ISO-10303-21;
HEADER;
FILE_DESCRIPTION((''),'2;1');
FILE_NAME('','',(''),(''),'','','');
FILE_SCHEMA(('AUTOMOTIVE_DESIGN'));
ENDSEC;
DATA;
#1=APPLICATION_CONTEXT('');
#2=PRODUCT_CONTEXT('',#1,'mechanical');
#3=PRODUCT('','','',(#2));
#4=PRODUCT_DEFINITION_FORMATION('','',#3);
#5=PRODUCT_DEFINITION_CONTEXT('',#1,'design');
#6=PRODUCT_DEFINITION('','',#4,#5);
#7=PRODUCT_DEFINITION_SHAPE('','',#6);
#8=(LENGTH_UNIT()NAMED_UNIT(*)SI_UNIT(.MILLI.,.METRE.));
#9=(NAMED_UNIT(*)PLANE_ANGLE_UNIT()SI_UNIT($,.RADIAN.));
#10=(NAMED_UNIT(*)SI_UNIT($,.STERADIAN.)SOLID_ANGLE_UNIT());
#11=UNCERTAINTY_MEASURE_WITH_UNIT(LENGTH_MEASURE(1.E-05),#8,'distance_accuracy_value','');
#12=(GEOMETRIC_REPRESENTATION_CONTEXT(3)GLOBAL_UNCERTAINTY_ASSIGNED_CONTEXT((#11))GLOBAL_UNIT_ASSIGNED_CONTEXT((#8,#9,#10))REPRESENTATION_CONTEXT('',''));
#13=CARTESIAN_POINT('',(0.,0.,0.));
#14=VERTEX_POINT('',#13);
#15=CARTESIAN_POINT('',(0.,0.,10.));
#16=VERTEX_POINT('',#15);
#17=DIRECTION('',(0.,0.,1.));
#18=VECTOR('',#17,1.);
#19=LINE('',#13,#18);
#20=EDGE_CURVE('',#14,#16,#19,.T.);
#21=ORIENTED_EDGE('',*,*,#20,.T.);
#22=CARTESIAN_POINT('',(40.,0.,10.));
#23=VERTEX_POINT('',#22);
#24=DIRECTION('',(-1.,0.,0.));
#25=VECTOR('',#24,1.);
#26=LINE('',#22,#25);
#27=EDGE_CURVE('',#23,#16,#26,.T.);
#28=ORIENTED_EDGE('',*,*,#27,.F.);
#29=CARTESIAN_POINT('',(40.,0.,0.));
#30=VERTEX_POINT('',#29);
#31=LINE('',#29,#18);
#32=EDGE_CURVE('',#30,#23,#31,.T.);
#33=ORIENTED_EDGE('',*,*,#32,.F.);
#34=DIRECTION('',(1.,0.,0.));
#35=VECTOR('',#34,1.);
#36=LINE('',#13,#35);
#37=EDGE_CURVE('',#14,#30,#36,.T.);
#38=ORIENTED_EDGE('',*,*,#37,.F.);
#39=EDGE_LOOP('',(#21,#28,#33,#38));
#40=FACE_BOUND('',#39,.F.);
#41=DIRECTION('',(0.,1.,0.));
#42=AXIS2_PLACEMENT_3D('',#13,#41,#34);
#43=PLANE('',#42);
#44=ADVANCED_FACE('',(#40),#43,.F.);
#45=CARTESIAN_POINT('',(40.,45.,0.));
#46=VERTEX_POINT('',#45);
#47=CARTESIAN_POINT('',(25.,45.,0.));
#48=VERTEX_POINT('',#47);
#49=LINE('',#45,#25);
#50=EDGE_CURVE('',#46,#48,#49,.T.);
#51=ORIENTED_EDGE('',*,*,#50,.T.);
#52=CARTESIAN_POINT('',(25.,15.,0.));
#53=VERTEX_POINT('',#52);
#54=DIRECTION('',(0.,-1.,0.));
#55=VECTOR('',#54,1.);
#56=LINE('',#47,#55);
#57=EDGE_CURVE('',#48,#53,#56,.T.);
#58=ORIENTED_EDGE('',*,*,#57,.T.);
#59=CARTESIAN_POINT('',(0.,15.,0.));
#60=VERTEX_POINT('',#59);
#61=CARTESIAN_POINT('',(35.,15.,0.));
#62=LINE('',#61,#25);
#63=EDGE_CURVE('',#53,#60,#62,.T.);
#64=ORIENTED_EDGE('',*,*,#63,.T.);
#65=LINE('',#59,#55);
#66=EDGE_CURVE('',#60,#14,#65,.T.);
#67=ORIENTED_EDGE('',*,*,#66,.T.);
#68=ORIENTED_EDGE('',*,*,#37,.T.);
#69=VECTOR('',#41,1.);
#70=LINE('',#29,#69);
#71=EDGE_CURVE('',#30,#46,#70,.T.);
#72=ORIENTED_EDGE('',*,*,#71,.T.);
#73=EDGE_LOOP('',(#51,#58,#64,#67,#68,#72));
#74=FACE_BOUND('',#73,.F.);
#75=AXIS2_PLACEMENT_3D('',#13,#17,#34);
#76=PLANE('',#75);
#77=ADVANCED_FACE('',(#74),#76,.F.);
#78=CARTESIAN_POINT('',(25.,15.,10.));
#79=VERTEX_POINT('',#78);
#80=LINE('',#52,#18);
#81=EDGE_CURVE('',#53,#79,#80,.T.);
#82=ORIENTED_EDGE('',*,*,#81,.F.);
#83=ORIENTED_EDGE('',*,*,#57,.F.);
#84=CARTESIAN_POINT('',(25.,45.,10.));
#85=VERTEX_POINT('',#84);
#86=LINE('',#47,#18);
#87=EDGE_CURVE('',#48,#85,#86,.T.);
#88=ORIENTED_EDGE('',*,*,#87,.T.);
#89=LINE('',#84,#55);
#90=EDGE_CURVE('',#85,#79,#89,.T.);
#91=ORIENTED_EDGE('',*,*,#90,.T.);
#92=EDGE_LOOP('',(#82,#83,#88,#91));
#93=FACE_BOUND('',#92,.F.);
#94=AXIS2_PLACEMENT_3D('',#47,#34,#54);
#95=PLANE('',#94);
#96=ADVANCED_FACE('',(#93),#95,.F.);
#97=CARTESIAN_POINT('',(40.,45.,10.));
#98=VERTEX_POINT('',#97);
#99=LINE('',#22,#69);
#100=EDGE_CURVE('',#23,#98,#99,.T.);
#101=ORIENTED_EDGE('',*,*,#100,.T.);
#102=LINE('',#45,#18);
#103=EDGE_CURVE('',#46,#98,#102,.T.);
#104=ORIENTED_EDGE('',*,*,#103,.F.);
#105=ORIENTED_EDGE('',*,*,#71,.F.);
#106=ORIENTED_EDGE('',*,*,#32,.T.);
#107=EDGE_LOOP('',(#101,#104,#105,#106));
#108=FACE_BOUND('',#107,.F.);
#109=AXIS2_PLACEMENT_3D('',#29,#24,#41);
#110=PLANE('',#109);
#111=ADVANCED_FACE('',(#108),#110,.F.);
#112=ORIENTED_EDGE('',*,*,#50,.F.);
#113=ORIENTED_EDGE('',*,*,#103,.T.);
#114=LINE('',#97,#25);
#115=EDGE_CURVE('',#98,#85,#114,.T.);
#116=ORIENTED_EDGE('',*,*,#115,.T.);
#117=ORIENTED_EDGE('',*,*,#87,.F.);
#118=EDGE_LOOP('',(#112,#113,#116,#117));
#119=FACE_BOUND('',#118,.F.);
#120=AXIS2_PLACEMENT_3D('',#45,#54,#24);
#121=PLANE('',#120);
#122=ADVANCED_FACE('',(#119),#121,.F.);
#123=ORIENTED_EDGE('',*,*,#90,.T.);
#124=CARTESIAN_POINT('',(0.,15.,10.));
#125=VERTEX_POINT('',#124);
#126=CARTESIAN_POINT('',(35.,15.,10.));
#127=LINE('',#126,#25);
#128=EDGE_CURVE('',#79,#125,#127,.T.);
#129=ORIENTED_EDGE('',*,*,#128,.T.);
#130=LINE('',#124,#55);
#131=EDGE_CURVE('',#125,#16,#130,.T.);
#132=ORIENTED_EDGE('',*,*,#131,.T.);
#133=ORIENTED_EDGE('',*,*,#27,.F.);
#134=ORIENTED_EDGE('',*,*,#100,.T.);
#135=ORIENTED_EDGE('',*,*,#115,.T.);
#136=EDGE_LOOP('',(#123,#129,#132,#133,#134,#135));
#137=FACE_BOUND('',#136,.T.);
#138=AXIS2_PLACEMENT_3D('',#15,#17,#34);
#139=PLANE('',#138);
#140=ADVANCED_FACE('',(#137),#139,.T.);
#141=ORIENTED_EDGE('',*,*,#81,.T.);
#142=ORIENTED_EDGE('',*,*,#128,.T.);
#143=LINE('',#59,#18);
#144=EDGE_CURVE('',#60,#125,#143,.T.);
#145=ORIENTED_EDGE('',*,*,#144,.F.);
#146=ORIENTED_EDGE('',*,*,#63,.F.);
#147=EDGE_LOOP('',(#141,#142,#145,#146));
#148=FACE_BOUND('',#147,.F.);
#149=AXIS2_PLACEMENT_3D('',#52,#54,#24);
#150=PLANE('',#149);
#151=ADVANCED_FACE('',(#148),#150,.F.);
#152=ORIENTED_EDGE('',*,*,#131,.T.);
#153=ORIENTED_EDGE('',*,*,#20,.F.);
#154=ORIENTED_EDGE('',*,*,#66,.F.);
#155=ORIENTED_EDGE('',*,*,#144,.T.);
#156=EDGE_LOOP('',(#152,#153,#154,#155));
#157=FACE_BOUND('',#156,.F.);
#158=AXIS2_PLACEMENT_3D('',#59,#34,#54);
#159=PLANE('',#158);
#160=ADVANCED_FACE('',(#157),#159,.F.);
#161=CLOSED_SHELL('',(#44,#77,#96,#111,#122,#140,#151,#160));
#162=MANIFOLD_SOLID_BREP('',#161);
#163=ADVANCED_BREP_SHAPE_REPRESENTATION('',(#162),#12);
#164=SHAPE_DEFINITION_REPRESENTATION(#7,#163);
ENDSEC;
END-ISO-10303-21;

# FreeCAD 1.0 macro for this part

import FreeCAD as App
import Part
import Sketcher

V = App.Vector
Q = App.Units.Quantity

doc = App.newDocument("Part")
body = doc.addObject("PartDesign::Body", "Body")

# Sketch on XY plane
sketch1 = doc.addObject("Sketcher::SketchObject", "Sketch")
body.addObject(sketch1)
sketch1.AttachmentSupport = (doc.XY_Plane, [""])
sketch1.MapMode = "FlatFace"
sketch1.addGeometry([
    Part.LineSegment(V(0, 15, 0), V(0, 0, 0)),  # 0
    Part.LineSegment(V(0, 0, 0), V(40, 0, 0)),  # 1
    Part.LineSegment(V(40, 0, 0), V(40, 45, 0)),  # 2
    Part.LineSegment(V(40, 45, 0), V(25, 45, 0)),  # 3
    Part.LineSegment(V(25, 45, 0), V(25, 15, 0)),  # 4
    Part.LineSegment(V(25, 15, 0), V(0, 15, 0)),  # 5
], False)
sketch1.addConstraint([
    Sketcher.Constraint("Coincident", 0, 2, 1, 1),
    Sketcher.Constraint("Coincident", 1, 2, 2, 1),
    Sketcher.Constraint("Coincident", 2, 2, 3, 1),
    Sketcher.Constraint("Coincident", 3, 2, 4, 1),
    Sketcher.Constraint("Coincident", 4, 2, 5, 1),
    Sketcher.Constraint("Coincident", 5, 2, 0, 1),
    Sketcher.Constraint("Vertical", 0),
    Sketcher.Constraint("Horizontal", 1),
    Sketcher.Constraint("Vertical", 2),
    Sketcher.Constraint("Horizontal", 3),
    Sketcher.Constraint("Vertical", 4),
    Sketcher.Constraint("Horizontal", 5),
    Sketcher.Constraint("Coincident", 0, 2, -1, 1),
    Sketcher.Constraint("Equal", 3, 0),
    Sketcher.Constraint("DistanceX", 1, 1, 1, 2, Q("40 mm")),
    Sketcher.Constraint("DistanceX", 3, 2, 3, 1, Q("15 mm")),
    Sketcher.Constraint("DistanceY", 2, 1, 2, 2, Q("45 mm")),
])
pad1 = doc.addObject("PartDesign::Pad", "Pad")
body.addObject(pad1)
pad1.Profile = sketch1
pad1.Length = 10

doc.recompute()
